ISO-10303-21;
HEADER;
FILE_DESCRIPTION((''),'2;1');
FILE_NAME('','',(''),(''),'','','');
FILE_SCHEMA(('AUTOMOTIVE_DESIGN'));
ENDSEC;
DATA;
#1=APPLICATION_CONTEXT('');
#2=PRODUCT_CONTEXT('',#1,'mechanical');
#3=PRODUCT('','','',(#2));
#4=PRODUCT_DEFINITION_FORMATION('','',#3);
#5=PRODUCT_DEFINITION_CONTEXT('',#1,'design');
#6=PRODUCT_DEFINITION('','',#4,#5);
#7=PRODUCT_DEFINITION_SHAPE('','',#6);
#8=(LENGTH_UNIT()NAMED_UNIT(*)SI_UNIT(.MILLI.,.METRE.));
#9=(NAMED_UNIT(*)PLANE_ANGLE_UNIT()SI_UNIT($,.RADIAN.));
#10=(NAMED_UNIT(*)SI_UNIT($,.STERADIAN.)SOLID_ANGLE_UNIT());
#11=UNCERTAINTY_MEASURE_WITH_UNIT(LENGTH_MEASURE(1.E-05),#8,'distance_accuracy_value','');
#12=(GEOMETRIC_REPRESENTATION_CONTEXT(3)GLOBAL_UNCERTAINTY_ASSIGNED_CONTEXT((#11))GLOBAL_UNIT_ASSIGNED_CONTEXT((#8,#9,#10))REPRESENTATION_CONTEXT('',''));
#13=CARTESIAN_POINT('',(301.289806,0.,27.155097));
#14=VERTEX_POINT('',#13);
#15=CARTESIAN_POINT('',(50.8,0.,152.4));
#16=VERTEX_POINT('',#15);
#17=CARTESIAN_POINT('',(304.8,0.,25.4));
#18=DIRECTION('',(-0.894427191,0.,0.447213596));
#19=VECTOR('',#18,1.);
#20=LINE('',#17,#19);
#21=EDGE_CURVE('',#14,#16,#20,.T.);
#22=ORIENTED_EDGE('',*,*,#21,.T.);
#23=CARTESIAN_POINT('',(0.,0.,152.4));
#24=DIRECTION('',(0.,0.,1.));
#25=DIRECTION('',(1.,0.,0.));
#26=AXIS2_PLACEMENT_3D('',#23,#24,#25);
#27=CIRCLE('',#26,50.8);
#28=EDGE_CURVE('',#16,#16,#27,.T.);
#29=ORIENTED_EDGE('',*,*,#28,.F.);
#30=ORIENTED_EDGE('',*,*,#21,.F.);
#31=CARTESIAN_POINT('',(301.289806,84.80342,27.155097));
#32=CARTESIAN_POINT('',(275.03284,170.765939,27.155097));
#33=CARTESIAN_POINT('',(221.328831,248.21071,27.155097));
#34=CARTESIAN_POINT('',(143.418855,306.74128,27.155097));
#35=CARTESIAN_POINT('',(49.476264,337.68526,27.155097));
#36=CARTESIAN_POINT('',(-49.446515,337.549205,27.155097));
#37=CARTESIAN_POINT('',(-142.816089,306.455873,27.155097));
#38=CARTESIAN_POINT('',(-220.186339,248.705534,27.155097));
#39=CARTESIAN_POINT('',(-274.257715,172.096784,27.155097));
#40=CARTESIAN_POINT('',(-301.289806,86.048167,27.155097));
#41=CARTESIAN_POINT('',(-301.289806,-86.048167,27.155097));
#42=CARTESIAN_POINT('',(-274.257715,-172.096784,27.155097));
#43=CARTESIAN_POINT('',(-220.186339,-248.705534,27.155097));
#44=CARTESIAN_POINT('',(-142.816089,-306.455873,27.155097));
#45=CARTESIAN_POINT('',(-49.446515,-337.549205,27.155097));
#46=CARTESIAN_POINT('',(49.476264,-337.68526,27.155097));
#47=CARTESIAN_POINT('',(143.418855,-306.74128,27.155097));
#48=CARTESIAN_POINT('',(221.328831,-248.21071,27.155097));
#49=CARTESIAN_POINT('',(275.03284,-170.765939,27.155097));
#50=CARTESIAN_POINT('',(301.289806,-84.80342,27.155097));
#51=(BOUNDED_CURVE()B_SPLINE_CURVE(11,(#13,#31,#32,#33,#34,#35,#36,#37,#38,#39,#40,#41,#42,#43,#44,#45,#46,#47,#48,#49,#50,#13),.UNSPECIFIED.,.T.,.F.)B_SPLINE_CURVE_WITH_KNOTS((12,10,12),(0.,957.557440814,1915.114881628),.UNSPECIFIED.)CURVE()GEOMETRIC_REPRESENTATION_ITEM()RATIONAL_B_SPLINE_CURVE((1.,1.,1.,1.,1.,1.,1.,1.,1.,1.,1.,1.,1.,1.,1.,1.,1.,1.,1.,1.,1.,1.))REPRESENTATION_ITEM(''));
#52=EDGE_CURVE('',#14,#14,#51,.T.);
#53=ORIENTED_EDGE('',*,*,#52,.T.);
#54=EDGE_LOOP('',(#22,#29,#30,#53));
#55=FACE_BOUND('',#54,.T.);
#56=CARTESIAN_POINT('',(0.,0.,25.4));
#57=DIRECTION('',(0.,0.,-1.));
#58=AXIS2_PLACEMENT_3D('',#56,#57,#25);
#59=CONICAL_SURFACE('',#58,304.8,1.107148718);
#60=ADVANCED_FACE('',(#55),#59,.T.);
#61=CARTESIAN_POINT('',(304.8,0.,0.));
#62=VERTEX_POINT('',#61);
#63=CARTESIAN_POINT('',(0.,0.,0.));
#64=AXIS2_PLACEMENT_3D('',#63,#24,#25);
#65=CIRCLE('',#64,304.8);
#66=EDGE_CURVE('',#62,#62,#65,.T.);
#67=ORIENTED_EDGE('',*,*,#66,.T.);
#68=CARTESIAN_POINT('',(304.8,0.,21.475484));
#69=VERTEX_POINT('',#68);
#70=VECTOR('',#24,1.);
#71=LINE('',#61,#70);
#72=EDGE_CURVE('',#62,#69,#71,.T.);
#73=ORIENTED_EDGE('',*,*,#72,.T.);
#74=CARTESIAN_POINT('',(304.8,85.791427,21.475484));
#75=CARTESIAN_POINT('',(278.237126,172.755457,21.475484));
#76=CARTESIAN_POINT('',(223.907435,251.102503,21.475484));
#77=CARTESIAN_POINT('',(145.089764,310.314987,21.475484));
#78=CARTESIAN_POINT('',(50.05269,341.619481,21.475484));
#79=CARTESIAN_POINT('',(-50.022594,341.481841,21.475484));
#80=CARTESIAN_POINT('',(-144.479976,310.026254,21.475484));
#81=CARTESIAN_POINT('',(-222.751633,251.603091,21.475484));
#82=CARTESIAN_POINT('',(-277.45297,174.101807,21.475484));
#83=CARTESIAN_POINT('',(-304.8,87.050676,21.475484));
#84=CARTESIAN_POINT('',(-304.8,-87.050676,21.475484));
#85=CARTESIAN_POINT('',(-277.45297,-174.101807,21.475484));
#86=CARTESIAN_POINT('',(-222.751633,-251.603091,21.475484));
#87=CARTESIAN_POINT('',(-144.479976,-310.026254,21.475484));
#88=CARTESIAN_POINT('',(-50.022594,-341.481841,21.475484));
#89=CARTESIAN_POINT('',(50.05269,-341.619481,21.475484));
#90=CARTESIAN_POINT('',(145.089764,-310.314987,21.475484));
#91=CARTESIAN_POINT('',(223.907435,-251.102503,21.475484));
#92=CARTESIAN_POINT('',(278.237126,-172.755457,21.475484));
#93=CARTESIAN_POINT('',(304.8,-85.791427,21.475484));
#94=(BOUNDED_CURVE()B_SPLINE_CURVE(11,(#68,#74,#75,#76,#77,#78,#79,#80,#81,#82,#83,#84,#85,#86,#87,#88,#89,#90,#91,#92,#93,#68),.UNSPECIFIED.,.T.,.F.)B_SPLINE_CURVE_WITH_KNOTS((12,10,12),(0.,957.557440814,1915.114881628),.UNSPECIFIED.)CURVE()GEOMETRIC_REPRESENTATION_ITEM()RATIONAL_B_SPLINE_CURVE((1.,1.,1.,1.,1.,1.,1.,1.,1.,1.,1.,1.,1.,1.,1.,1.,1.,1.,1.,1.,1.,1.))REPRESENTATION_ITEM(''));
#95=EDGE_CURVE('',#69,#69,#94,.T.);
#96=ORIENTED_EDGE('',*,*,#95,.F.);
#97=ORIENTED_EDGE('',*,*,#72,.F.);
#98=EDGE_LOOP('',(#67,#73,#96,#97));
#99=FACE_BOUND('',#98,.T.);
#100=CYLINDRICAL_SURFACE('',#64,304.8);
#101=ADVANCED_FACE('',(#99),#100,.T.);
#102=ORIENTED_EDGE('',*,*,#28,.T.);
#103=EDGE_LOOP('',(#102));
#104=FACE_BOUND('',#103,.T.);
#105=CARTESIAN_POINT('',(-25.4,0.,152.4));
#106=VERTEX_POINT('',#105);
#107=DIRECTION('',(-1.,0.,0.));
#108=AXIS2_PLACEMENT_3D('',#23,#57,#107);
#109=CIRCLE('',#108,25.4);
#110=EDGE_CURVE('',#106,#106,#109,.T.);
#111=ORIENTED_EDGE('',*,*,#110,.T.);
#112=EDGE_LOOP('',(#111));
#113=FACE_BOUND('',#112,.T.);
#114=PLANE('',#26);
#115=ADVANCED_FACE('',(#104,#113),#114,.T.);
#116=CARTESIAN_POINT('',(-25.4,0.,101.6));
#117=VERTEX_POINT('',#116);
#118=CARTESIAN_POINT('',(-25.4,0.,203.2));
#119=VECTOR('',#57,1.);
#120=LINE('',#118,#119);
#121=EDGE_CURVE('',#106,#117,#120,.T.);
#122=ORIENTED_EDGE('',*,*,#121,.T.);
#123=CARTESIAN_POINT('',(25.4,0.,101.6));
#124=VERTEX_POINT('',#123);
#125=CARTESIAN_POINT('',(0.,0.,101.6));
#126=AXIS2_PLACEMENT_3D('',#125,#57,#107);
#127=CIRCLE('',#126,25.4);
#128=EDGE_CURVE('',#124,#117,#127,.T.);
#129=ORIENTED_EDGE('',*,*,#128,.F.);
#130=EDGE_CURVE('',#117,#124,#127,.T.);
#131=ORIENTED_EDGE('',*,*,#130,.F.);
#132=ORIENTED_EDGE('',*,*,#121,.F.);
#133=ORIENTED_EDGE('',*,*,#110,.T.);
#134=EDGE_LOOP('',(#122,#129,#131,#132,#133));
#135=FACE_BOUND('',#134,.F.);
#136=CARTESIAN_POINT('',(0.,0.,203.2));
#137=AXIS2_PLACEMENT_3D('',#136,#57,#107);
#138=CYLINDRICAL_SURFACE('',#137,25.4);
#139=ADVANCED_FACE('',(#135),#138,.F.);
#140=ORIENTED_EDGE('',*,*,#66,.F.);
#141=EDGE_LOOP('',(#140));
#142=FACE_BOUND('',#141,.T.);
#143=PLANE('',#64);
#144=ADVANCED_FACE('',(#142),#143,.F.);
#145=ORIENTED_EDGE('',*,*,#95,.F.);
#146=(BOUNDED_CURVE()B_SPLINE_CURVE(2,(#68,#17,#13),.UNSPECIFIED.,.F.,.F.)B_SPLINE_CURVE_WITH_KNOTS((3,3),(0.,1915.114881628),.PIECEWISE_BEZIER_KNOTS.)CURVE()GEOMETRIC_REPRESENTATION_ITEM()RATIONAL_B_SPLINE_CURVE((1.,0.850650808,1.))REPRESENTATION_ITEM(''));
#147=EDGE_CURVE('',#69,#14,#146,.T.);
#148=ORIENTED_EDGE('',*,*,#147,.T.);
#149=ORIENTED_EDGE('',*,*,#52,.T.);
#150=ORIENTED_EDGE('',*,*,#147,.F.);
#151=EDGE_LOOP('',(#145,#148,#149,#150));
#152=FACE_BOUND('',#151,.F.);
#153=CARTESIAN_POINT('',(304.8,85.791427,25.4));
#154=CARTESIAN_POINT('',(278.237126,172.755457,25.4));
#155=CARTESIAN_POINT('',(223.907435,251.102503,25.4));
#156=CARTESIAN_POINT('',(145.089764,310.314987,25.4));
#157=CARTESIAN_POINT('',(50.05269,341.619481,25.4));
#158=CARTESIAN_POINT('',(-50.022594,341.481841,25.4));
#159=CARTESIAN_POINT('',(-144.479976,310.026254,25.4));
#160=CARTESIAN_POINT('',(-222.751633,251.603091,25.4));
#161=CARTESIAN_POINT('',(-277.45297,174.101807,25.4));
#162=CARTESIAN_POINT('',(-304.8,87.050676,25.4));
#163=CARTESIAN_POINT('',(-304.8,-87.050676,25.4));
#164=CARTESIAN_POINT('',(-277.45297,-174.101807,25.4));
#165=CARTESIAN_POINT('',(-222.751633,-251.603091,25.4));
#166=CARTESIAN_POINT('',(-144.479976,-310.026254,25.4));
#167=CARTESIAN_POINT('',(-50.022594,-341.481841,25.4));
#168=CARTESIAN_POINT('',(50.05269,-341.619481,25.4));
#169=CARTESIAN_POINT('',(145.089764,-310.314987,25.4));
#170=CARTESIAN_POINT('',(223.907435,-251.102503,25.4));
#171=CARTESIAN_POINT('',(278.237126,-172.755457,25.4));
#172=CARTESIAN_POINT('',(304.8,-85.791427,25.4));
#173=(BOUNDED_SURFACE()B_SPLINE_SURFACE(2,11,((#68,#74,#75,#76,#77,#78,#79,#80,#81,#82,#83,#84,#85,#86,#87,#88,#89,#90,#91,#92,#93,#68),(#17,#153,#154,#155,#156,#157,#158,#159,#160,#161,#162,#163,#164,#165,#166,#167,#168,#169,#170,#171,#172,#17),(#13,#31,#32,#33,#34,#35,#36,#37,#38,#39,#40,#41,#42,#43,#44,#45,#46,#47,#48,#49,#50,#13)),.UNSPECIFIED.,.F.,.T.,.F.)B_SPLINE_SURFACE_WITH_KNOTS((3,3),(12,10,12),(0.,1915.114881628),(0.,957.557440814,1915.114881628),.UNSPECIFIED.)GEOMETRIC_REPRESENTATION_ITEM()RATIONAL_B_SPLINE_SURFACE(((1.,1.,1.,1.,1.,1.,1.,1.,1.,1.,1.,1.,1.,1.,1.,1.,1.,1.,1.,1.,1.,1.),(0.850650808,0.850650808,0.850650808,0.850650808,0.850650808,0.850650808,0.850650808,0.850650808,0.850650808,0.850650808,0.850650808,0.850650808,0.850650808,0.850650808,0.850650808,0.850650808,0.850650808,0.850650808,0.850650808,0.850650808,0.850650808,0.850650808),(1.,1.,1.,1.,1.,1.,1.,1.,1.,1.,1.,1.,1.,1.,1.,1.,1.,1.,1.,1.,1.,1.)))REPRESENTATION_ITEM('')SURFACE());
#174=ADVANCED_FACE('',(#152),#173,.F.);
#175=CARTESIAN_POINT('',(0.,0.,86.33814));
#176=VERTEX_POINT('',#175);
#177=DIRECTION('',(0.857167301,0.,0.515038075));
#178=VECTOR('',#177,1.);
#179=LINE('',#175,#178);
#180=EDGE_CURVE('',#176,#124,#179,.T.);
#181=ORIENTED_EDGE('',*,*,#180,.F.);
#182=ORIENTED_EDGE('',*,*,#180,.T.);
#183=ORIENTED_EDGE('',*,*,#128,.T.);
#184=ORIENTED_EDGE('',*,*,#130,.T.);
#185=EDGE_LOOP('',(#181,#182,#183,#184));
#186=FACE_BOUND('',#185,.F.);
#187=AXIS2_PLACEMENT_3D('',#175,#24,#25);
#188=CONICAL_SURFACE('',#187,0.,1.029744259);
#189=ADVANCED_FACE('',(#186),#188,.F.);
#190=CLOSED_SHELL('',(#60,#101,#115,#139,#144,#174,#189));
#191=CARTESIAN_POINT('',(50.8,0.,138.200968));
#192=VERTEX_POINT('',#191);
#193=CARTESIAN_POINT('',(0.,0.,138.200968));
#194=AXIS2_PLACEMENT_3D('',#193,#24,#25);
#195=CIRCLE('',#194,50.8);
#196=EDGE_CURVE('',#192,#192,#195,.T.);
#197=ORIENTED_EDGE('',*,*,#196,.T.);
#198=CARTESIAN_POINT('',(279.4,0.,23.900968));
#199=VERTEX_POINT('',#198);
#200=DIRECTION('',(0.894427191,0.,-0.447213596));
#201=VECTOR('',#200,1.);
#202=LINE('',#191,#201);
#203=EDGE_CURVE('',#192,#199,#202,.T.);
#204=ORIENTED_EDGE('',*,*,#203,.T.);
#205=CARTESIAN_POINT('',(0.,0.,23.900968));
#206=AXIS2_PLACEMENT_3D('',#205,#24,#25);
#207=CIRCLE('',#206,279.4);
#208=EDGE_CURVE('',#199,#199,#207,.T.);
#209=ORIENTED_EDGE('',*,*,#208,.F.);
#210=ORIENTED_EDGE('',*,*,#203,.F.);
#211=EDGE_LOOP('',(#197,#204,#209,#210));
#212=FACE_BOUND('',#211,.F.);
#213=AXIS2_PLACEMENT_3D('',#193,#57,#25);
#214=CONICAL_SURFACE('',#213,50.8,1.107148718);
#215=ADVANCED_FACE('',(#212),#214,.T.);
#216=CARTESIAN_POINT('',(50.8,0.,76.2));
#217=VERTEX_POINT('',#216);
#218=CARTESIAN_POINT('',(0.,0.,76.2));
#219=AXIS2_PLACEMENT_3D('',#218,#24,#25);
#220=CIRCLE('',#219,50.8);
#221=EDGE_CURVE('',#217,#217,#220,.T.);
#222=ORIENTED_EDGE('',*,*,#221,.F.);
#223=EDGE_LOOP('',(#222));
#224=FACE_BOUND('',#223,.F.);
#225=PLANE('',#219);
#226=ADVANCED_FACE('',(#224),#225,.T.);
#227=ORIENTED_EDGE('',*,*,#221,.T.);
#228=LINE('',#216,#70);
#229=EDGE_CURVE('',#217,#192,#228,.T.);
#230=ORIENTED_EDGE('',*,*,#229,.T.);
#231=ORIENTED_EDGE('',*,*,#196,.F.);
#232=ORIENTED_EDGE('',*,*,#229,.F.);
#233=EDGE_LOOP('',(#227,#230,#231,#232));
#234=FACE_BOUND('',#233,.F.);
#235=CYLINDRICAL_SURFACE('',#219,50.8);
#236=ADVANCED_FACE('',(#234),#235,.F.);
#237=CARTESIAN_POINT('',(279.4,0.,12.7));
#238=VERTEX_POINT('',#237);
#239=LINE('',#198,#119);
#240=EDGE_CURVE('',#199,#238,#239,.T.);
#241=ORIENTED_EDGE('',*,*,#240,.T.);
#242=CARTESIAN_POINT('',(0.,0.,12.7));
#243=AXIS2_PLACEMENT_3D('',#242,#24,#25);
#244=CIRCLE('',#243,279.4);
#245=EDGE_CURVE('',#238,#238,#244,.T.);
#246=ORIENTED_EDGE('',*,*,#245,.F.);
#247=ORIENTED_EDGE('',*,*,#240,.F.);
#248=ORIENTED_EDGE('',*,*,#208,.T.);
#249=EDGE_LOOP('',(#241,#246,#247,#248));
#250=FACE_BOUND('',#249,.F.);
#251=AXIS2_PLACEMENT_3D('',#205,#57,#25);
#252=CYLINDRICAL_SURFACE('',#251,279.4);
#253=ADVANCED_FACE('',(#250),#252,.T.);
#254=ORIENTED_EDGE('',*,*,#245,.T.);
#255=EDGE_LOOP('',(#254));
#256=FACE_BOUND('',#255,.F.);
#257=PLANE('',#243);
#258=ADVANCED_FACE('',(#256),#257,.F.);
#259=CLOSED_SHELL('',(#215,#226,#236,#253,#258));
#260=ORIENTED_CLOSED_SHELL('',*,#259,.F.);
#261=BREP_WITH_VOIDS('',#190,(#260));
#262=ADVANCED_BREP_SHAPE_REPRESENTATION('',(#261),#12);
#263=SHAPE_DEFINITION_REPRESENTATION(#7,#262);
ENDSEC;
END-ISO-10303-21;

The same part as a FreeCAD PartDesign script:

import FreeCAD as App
import Part
import Sketcher
from FreeCAD import Vector
Q = App.Units.Quantity


def edges_at(feature, points):
    """Names of the edges that pass closest to the given points."""
    edges = feature.Shape.Edges
    near = lambda p: min(range(len(edges)), key=lambda i: edges[i].distToShape(Part.Vertex(*p))[0])
    return sorted({f"Edge{near(p) + 1}" for p in points})

doc = App.newDocument("Part")
body = doc.addObject("PartDesign::Body", "Body")

sketch1 = body.newObject("Sketcher::SketchObject", "Sketch")
sketch1.AttachmentSupport = (doc.getObject("XZ_Plane"), [""])
sketch1.MapMode = "FlatFace"
sketch1.addGeometry([
    Part.LineSegment(Vector(0, 13, 0), Vector(0, 0, 0)),
    Part.LineSegment(Vector(0, 0, 0), Vector(305, 0, 0)),
    Part.LineSegment(Vector(305, 0, 0), Vector(305, 25, 0)),
    Part.LineSegment(Vector(305, 25, 0), Vector(51, 152, 0)),
    Part.LineSegment(Vector(51, 152, 0), Vector(0, 152, 0)),
    Part.LineSegment(Vector(0, 152, 0), Vector(0, 76, 0)),
    Part.LineSegment(Vector(0, 76, 0), Vector(51, 76, 0)),
    Part.LineSegment(Vector(51, 76, 0), Vector(51, 138, 0)),
    Part.LineSegment(Vector(51, 138, 0), Vector(279, 24, 0)),
    Part.LineSegment(Vector(279, 24, 0), Vector(279, 13, 0)),
    Part.LineSegment(Vector(279, 13, 0), Vector(0, 13, 0)),
], False)
sketch1.addConstraint([
    Sketcher.Constraint("Coincident", 0, 2, 1, 1),
    Sketcher.Constraint("Coincident", 1, 2, 2, 1),
    Sketcher.Constraint("Coincident", 2, 2, 3, 1),
    Sketcher.Constraint("Coincident", 3, 2, 4, 1),
    Sketcher.Constraint("Coincident", 4, 2, 5, 1),
    Sketcher.Constraint("Coincident", 5, 2, 6, 1),
    Sketcher.Constraint("Coincident", 6, 2, 7, 1),
    Sketcher.Constraint("Coincident", 7, 2, 8, 1),
    Sketcher.Constraint("Coincident", 8, 2, 9, 1),
    Sketcher.Constraint("Coincident", 9, 2, 10, 1),
    Sketcher.Constraint("Coincident", 10, 2, 0, 1),
    Sketcher.Constraint("Vertical", 0),
    Sketcher.Constraint("Horizontal", 1),
    Sketcher.Constraint("Vertical", 2),
    Sketcher.Constraint("Horizontal", 4),
    Sketcher.Constraint("Vertical", 5),
    Sketcher.Constraint("Horizontal", 6),
    Sketcher.Constraint("Vertical", 7),
    Sketcher.Constraint("Vertical", 9),
    Sketcher.Constraint("Horizontal", 10),
    Sketcher.Constraint("Coincident", 0, 2, -1, 1),
    Sketcher.Constraint("PointOnObject", 4, 2, -2),
    Sketcher.Constraint("Parallel", 3, 8),
    Sketcher.Constraint("Vertical", 3, 2, 6, 2),
    Sketcher.Constraint("DistanceX", 1, 1, 1, 2, Q("12 in")),
    Sketcher.Constraint("DistanceX", 4, 2, 4, 1, Q("2 in")),
    Sketcher.Constraint("DistanceX", 10, 2, 10, 1, Q("11 in")),
    Sketcher.Constraint("DistanceY", 2, 1, 2, 2, Q("1 in")),
    Sketcher.Constraint("DistanceY", 5, 2, 5, 1, Q("3 in")),
    Sketcher.Constraint("DistanceY", 0, 2, 0, 1, Q("0.5 in")),
    Sketcher.Constraint("DistanceY", -1, 1, 3, 2, Q("6 in")),
    Sketcher.Constraint("DistanceY", 7, 1, 7, 2, 62.000968),
])
revolution = body.newObject("PartDesign::Revolution", "Revolution")
revolution.Profile = sketch1
revolution.ReferenceAxis = (sketch1, ["V_Axis"])
revolution.Angle = 360
doc.recompute()

fillet = body.newObject("PartDesign::Fillet", "Fillet")
fillet.Base = (revolution, edges_at(revolution, [(-304.8, 0, 25.4)]))
fillet.Radius = Q("0.25 in")

sketch2 = body.newObject("Sketcher::SketchObject", "Sketch001")
sketch2.AttachmentSupport = (doc.getObject("XY_Plane"), [""])
sketch2.MapMode = "FlatFace"
sketch2.AttachmentOffset = App.Placement(Vector(0, 0, 6 * 25.4), App.Rotation())
sketch2.addGeometry(Part.Circle(Vector(0, 0, 0), Vector(0, 0, 1), 25), False)
sketch2.addConstraint([
    Sketcher.Constraint("Coincident", 0, 3, -1, 1),
    Sketcher.Constraint("Diameter", 0, Q("2 in")),
])
doc.recompute()
hole = body.newObject("PartDesign::Hole", "Hole")
hole.Profile = sketch2
hole.ThreadType = "None"
hole.Diameter = Q("2 in")
hole.DepthType = "Dimension"
hole.Depth = Q("2 in")
hole.DrillPoint = "Angled"
hole.DrillPointAngle = 118

doc.recompute()
